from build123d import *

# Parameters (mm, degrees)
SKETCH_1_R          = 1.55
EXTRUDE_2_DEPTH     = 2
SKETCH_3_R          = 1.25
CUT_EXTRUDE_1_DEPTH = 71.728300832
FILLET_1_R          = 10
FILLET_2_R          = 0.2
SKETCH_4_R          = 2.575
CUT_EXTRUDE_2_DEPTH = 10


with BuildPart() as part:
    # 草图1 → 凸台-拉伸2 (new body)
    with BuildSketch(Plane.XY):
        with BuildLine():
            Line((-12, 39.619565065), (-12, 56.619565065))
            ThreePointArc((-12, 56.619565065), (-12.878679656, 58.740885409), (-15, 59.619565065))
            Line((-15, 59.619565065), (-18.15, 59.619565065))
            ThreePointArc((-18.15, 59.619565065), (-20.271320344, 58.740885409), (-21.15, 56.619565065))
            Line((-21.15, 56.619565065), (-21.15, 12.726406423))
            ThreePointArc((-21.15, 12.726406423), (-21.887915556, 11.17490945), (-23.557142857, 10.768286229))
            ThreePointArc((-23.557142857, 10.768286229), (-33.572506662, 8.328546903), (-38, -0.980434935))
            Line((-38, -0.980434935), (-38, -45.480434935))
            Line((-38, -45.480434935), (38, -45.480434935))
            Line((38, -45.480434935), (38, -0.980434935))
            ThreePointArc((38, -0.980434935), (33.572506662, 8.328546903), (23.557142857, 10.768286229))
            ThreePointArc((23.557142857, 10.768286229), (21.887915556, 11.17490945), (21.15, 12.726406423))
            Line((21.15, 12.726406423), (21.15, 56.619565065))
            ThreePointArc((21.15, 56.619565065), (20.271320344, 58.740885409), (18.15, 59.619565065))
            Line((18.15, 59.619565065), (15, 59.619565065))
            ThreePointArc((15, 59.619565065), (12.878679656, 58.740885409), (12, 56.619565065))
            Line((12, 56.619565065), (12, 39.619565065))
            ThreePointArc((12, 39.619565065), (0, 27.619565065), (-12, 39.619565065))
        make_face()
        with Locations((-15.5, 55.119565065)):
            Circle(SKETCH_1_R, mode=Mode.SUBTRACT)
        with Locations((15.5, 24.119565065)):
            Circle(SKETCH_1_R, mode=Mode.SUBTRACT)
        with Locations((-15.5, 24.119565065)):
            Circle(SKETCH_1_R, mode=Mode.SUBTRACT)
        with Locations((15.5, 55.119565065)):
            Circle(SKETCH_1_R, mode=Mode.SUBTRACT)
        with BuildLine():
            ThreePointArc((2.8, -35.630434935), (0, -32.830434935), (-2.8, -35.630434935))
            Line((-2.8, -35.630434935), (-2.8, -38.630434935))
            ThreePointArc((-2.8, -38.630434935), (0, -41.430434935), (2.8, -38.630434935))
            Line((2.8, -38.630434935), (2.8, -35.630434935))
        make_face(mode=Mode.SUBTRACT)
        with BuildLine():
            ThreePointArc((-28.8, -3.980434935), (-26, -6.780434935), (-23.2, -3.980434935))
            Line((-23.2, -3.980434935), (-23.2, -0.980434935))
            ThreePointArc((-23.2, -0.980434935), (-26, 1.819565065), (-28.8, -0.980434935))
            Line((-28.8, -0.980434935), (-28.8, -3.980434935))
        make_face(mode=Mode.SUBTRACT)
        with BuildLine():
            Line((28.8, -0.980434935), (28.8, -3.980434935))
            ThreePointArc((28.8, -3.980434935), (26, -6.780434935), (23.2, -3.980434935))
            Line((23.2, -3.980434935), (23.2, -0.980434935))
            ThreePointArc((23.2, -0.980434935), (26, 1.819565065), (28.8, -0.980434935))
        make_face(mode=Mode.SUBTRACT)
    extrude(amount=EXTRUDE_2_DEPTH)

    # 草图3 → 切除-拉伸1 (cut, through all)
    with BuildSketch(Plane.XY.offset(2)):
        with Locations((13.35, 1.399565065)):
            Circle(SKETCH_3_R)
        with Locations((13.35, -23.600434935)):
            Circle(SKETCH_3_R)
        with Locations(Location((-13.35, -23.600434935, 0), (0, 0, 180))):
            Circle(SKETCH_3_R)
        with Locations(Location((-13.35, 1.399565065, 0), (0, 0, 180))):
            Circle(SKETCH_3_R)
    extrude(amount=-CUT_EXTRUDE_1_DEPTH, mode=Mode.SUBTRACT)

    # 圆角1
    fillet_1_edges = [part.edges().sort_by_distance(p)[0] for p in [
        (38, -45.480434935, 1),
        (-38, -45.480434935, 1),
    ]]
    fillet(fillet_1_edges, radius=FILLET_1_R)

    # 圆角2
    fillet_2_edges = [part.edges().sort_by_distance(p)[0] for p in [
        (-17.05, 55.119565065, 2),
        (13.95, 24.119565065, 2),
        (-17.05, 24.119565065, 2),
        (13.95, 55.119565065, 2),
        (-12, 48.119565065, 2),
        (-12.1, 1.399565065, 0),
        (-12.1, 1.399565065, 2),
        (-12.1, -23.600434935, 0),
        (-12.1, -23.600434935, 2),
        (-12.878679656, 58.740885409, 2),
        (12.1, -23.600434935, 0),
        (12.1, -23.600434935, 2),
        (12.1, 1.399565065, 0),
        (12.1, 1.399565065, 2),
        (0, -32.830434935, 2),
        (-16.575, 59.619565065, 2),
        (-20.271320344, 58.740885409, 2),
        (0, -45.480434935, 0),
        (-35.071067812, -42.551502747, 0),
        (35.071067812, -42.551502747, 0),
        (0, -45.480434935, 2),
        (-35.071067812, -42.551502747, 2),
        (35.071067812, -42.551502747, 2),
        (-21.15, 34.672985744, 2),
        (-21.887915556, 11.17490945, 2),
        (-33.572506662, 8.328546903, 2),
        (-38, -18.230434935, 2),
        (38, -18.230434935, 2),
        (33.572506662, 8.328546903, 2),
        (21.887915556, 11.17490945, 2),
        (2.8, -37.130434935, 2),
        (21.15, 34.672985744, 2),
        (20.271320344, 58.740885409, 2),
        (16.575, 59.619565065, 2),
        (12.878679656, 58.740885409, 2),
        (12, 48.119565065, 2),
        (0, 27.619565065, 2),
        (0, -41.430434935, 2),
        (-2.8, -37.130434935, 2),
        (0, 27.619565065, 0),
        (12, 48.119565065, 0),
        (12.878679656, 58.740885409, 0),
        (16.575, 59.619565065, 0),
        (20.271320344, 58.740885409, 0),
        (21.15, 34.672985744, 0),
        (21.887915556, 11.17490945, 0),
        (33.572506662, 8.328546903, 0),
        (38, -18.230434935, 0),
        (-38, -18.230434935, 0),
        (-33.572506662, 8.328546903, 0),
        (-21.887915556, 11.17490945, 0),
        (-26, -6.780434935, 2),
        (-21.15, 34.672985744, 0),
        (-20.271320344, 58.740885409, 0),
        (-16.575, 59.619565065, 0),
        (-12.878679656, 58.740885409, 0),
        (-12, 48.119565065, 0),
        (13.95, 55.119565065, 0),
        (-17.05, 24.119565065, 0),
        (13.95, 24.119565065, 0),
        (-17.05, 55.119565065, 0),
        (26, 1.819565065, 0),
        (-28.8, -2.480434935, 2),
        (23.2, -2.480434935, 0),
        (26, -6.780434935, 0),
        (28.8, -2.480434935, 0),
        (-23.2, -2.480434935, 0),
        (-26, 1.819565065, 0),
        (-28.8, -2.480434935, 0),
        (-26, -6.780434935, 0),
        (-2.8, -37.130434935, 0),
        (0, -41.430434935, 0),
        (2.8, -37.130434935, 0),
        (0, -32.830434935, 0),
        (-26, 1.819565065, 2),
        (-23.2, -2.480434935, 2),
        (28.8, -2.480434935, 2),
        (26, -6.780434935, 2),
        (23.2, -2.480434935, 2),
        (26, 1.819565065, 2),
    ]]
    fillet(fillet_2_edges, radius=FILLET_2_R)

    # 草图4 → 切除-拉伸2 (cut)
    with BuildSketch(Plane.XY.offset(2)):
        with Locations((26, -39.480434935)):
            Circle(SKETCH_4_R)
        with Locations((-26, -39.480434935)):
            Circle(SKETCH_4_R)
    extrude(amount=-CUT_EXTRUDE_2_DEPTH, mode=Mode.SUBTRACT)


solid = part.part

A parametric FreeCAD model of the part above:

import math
import FreeCAD as App
import Part
import Sketcher
from FreeCAD import Vector
Q = App.Units.Quantity


def edges_at(feature, points):
    """Names of the edges that pass closest to the given points."""
    edges = feature.Shape.Edges
    near = lambda p: min(range(len(edges)), key=lambda i: edges[i].distToShape(Part.Vertex(*p))[0])
    return sorted({f"Edge{near(p) + 1}" for p in points})

doc = App.newDocument("Part")
body = doc.addObject("PartDesign::Body", "Body")

sketch1 = body.newObject("Sketcher::SketchObject", "Sketch")
sketch1.AttachmentSupport = (doc.getObject("XY_Plane"), [""])
sketch1.MapMode = "FlatFace"
sketch1.addGeometry([
    Part.LineSegment(Vector(-12, 39.619565, 0), Vector(-12, 56.619565, 0)),
    Part.ArcOfCircle(Part.Circle(Vector(-15, 56.619565, 0), Vector(0, 0, 1), 3), math.radians(0), math.radians(90)),
    Part.LineSegment(Vector(-15, 59.619565, 0), Vector(-18.15, 59.619565, 0)),
    Part.ArcOfCircle(Part.Circle(Vector(-18.15, 56.619565, 0), Vector(0, 0, 1), 3), math.radians(90), math.radians(180)),
    Part.LineSegment(Vector(-21.15, 56.619565, 0), Vector(-21.15, 12.726406, 0)),
    Part.ArcOfCircle(Part.Circle(Vector(-23.15, 12.726406, 0), Vector(0, 0, 1), 2), math.radians(-101.745885), math.radians(0)),
    Part.ArcOfCircle(Part.Circle(Vector(-26, -0.980435, 0), Vector(0, 0, 1), 12), math.radians(78.254115), math.radians(180)),
    Part.LineSegment(Vector(-38, -0.980435, 0), Vector(-38, -45.480435, 0)),
    Part.LineSegment(Vector(-38, -45.480435, 0), Vector(38, -45.480435, 0)),
    Part.LineSegment(Vector(38, -45.480435, 0), Vector(38, -0.980435, 0)),
    Part.ArcOfCircle(Part.Circle(Vector(26, -0.980435, 0), Vector(0, 0, 1), 12), math.radians(0), math.radians(101.745885)),
    Part.ArcOfCircle(Part.Circle(Vector(23.15, 12.726406, 0), Vector(0, 0, 1), 2), math.radians(180), math.radians(281.745885)),
    Part.LineSegment(Vector(21.15, 12.726406, 0), Vector(21.15, 56.619565, 0)),
    Part.ArcOfCircle(Part.Circle(Vector(18.15, 56.619565, 0), Vector(0, 0, 1), 3), math.radians(0), math.radians(90)),
    Part.LineSegment(Vector(18.15, 59.619565, 0), Vector(15, 59.619565, 0)),
    Part.ArcOfCircle(Part.Circle(Vector(15, 56.619565, 0), Vector(0, 0, 1), 3), math.radians(90), math.radians(180)),
    Part.LineSegment(Vector(12, 56.619565, 0), Vector(12, 39.619565, 0)),
    Part.ArcOfCircle(Part.Circle(Vector(0, 39.619565, 0), Vector(0, 0, 1), 12), math.radians(180), math.radians(360)),
    Part.ArcOfCircle(Part.Circle(Vector(-26, -3.980435, 0), Vector(0, 0, 1), 2.8), math.radians(180), math.radians(360)),
    Part.LineSegment(Vector(-28.8, -3.980435, 0), Vector(-28.8, -0.980435, 0)),
    Part.ArcOfCircle(Part.Circle(Vector(-26, -0.980435, 0), Vector(0, 0, 1), 2.8), math.radians(0), math.radians(180)),
    Part.LineSegment(Vector(-23.2, -0.980435, 0), Vector(-23.2, -3.980435, 0)),
    Part.ArcOfCircle(Part.Circle(Vector(0, -35.630435, 0), Vector(0, 0, 1), 2.8), math.radians(0), math.radians(180)),
    Part.LineSegment(Vector(2.8, -35.630435, 0), Vector(2.8, -38.630435, 0)),
    Part.ArcOfCircle(Part.Circle(Vector(0, -38.630435, 0), Vector(0, 0, 1), 2.8), math.radians(180), math.radians(360)),
    Part.LineSegment(Vector(-2.8, -38.630435, 0), Vector(-2.8, -35.630435, 0)),
    Part.ArcOfCircle(Part.Circle(Vector(26, -0.980435, 0), Vector(0, 0, 1), 2.8), math.radians(0), math.radians(180)),
    Part.LineSegment(Vector(28.8, -0.980435, 0), Vector(28.8, -3.980435, 0)),
    Part.ArcOfCircle(Part.Circle(Vector(26, -3.980435, 0), Vector(0, 0, 1), 2.8), math.radians(180), math.radians(360)),
    Part.LineSegment(Vector(23.2, -3.980435, 0), Vector(23.2, -0.980435, 0)),
    Part.Circle(Vector(-15.5, 24.119565, 0), Vector(0, 0, 1), 1.55),
    Part.Circle(Vector(-15.5, 55.119565, 0), Vector(0, 0, 1), 1.55),
    Part.Circle(Vector(15.5, 24.119565, 0), Vector(0, 0, 1), 1.55),
    Part.Circle(Vector(15.5, 55.119565, 0), Vector(0, 0, 1), 1.55),
], False)
sketch1.addConstraint([
    Sketcher.Constraint("Tangent", 0, 2, 1, 1),
    Sketcher.Constraint("Tangent", 1, 2, 2, 1),
    Sketcher.Constraint("Tangent", 2, 2, 3, 1),
    Sketcher.Constraint("Tangent", 3, 2, 4, 1),
    Sketcher.Constraint("Tangent", 4, 2, 5, 2),
    Sketcher.Constraint("Tangent", 5, 1, 6, 1),
    Sketcher.Constraint("Tangent", 6, 2, 7, 1),
    Sketcher.Constraint("Coincident", 7, 2, 8, 1),
    Sketcher.Constraint("Coincident", 8, 2, 9, 1),
    Sketcher.Constraint("Tangent", 9, 2, 10, 1),
    Sketcher.Constraint("Tangent", 10, 2, 11, 2),
    Sketcher.Constraint("Tangent", 11, 1, 12, 1),
    Sketcher.Constraint("Tangent", 12, 2, 13, 1),
    Sketcher.Constraint("Tangent", 13, 2, 14, 1),
    Sketcher.Constraint("Tangent", 14, 2, 15, 1),
    Sketcher.Constraint("Tangent", 15, 2, 16, 1),
    Sketcher.Constraint("Tangent", 16, 2, 17, 2),
    Sketcher.Constraint("Tangent", 17, 1, 0, 1),
    Sketcher.Constraint("Tangent", 18, 1, 19, 1),
    Sketcher.Constraint("Tangent", 19, 2, 20, 2),
    Sketcher.Constraint("Tangent", 20, 1, 21, 1),
    Sketcher.Constraint("Tangent", 21, 2, 18, 2),
    Sketcher.Constraint("Tangent", 22, 1, 23, 1),
    Sketcher.Constraint("Tangent", 23, 2, 24, 2),
    Sketcher.Constraint("Tangent", 24, 1, 25, 1),
    Sketcher.Constraint("Tangent", 25, 2, 22, 2),
    Sketcher.Constraint("Tangent", 26, 1, 27, 1),
    Sketcher.Constraint("Tangent", 27, 2, 28, 2),
    Sketcher.Constraint("Tangent", 28, 1, 29, 1),
    Sketcher.Constraint("Tangent", 29, 2, 26, 2),
    Sketcher.Constraint("Vertical", 0),
    Sketcher.Constraint("Horizontal", 2),
    Sketcher.Constraint("Vertical", 4),
    Sketcher.Constraint("Vertical", 7),
    Sketcher.Constraint("Horizontal", 8),
    Sketcher.Constraint("Vertical", 9),
    Sketcher.Constraint("Vertical", 12),
    Sketcher.Constraint("Horizontal", 14),
    Sketcher.Constraint("Vertical", 16),
    Sketcher.Constraint("Vertical", 19),
    Sketcher.Constraint("Vertical", 21),
    Sketcher.Constraint("Vertical", 23),
    Sketcher.Constraint("Vertical", 25),
    Sketcher.Constraint("Vertical", 27),
    Sketcher.Constraint("Vertical", 29),
    Sketcher.Constraint("Coincident", 20, 3, 6, 3),
    Sketcher.Constraint("Coincident", 26, 3, 10, 3),
    Sketcher.Constraint("Equal", 1, 3),
    Sketcher.Constraint("Equal", 6, 10),
    Sketcher.Constraint("Equal", 5, 11),
    Sketcher.Constraint("Equal", 3, 13),
    Sketcher.Constraint("Equal", 13, 15),
    Sketcher.Constraint("Equal", 10, 17),
    Sketcher.Constraint("Equal", 20, 22),
    Sketcher.Constraint("Equal", 24, 26),
    Sketcher.Constraint("Equal", 30, 31),
    Sketcher.Constraint("Equal", 31, 32),
    Sketcher.Constraint("Equal", 32, 33),
    Sketcher.Constraint("Symmetric", 6, 3, 10, 3, -2),
    Sketcher.Constraint("Symmetric", 3, 3, 13, 3, -2),
    Sketcher.Constraint("Symmetric", 30, 3, 32, 3, -2),
    Sketcher.Constraint("Symmetric", 31, 3, 33, 3, -2),
    Sketcher.Constraint("PointOnObject", 17, 3, -2),
    Sketcher.Constraint("PointOnObject", 22, 3, -2),
    Sketcher.Constraint("Horizontal", 18, 3, 28, 3),
    Sketcher.Constraint("Vertical", 30, 3, 31, 3),
    Sketcher.Constraint("Equal", 21, 23),
    Sketcher.Constraint("Radius", 1, Q("3 mm")),
    Sketcher.Constraint("Radius", 5, Q("2 mm")),
    Sketcher.Constraint("Radius", 6, Q("12 mm")),
    Sketcher.Constraint("Diameter", 30, Q("3.1 mm")),
    Sketcher.Constraint("Radius", 18, Q("2.8 mm")),
    Sketcher.Constraint("DistanceX", 8, 1, 8, 2, Q("76 mm")),
    Sketcher.Constraint("DistanceY", 0, 1, 0, 2, Q("17 mm")),
    Sketcher.Constraint("DistanceY", 19, 1, 19, 2, Q("3 mm")),
    Sketcher.Constraint("DistanceY", 7, 2, 7, 1, Q("44.5 mm")),
    Sketcher.Constraint("DistanceY", 30, 3, 31, 3, Q("31 mm")),
    Sketcher.Constraint("DistanceX", 31, 3, 33, 3, Q("31 mm")),
    Sketcher.Constraint("DistanceX", 2, 2, 2, 1, Q("3.15 mm")),
    Sketcher.Constraint("DistanceY", 6, 3, 3, 3, Q("57.6 mm")),
    Sketcher.Constraint("DistanceY", 30, 3, 17, 3, Q("15.5 mm")),
    Sketcher.Constraint("DistanceY", 22, 3, 18, 3, Q("31.65 mm")),
    Sketcher.Constraint("DistanceY", -1, 1, 1, 3, Q("56.619565 mm")),
])
pad1 = body.newObject("PartDesign::Pad", "Pad")
pad1.Profile = sketch1
pad1.Length = 2

sketch2 = body.newObject("Sketcher::SketchObject", "Sketch001")
sketch2.AttachmentSupport = (doc.getObject("XY_Plane"), [""])
sketch2.MapMode = "FlatFace"
sketch2.AttachmentOffset = App.Placement(Vector(0, 0, 2), App.Rotation())
sketch2.addGeometry([
    Part.Circle(Vector(13.35, 1.399565, 0), Vector(0, 0, 1), 1.25),
    Part.Circle(Vector(13.35, -23.600435, 0), Vector(0, 0, 1), 1.25),
    Part.Circle(Vector(-13.35, -23.600435, 0), Vector(0, 0, 1), 1.25),
    Part.Circle(Vector(-13.35, 1.399565, 0), Vector(0, 0, 1), 1.25),
], False)
sketch2.addConstraint([
    Sketcher.Constraint("Equal", 0, 1),
    Sketcher.Constraint("Equal", 1, 2),
    Sketcher.Constraint("Equal", 2, 3),
    Sketcher.Constraint("Symmetric", 1, 3, 2, 3, -2),
    Sketcher.Constraint("Symmetric", 0, 3, 3, 3, -2),
    Sketcher.Constraint("Vertical", 0, 3, 1, 3),
    Sketcher.Constraint("Diameter", 0, Q("2.5 mm")),
    Sketcher.Constraint("DistanceY", 1, 3, 0, 3, Q("25 mm")),
    Sketcher.Constraint("DistanceX", 2, 3, 1, 3, Q("26.7 mm")),
    Sketcher.Constraint("DistanceY", -1, 1, 0, 3, Q("1.399565 mm")),
])
pocket1 = body.newObject("PartDesign::Pocket", "Pocket")
pocket1.Profile = sketch2
pocket1.Type = "ThroughAll"
doc.recompute()

fillet = body.newObject("PartDesign::Fillet", "Fillet")
fillet.Base = (pocket1, edges_at(pocket1, [(38, -45.48, 1), (-38, -45.48, 1)]))
fillet.Radius = 10
doc.recompute()

fillet2 = body.newObject("PartDesign::Fillet", "Fillet001")
fillet2.Base = (fillet, edges_at(fillet, [
    (-17.05, 55.12, 2),
    (13.95, 24.12, 2),
    (-17.05, 24.12, 2),
    (13.95, 55.12, 2),
    (-12, 48.12, 2),
    (-12.1, 1.4, 0),
    (-12.1, 1.4, 2),
    (-12.1, -23.6, 0),
    (-12.1, -23.6, 2),
    (-12.879, 58.741, 2),
    (12.1, -23.6, 0),
    (12.1, -23.6, 2),
    (12.1, 1.4, 0),
    (12.1, 1.4, 2),
    (0, -32.83, 2),
    (-16.575, 59.62, 2),
    (-20.271, 58.741, 2),
    (0, -45.48, 0),
    (-35.071, -42.552, 0),
    (35.071, -42.552, 0),
    (0, -45.48, 2),
    (-35.071, -42.552, 2),
    (35.071, -42.552, 2),
    (-21.15, 34.673, 2),
    (-21.888, 11.175, 2),
    (-33.573, 8.329, 2),
    (-38, -18.23, 2),
    (38, -18.23, 2),
    (33.573, 8.329, 2),
    (21.888, 11.175, 2),
    (2.8, -37.13, 2),
    (21.15, 34.673, 2),
    (20.271, 58.741, 2),
    (16.575, 59.62, 2),
    (12.879, 58.741, 2),
    (12, 48.12, 2),
    (0, 27.62, 2),
    (0, -41.43, 2),
    (-2.8, -37.13, 2),
    (0, 27.62, 0),
    (12, 48.12, 0),
    (12.879, 58.741, 0),
    (16.575, 59.62, 0),
    (20.271, 58.741, 0),
    (21.15, 34.673, 0),
    (21.888, 11.175, 0),
    (33.573, 8.329, 0),
    (38, -18.23, 0),
    (-38, -18.23, 0),
    (-33.573, 8.329, 0),
    (-21.888, 11.175, 0),
    (-26, -6.78, 2),
    (-21.15, 34.673, 0),
    (-20.271, 58.741, 0),
    (-16.575, 59.62, 0),
    (-12.879, 58.741, 0),
    (-12, 48.12, 0),
    (13.95, 55.12, 0),
    (-17.05, 24.12, 0),
    (13.95, 24.12, 0),
    (-17.05, 55.12, 0),
    (26, 1.82, 0),
    (-28.8, -2.48, 2),
    (23.2, -2.48, 0),
    (26, -6.78, 0),
    (28.8, -2.48, 0),
    (-23.2, -2.48, 0),
    (-26, 1.82, 0),
    (-28.8, -2.48, 0),
    (-26, -6.78, 0),
    (-2.8, -37.13, 0),
    (0, -41.43, 0),
    (2.8, -37.13, 0),
    (0, -32.83, 0),
    (-26, 1.82, 2),
    (-23.2, -2.48, 2),
    (28.8, -2.48, 2),
    (26, -6.78, 2),
    (23.2, -2.48, 2),
    (26, 1.82, 2),
]))
fillet2.Radius = 0.2

sketch3 = body.newObject("Sketcher::SketchObject", "Sketch002")
sketch3.AttachmentSupport = (doc.getObject("XY_Plane"), [""])
sketch3.MapMode = "FlatFace"
sketch3.AttachmentOffset = App.Placement(Vector(0, 0, 2), App.Rotation())
sketch3.addGeometry([
    Part.Circle(Vector(26, -39.480435, 0), Vector(0, 0, 1), 2.575),
    Part.Circle(Vector(-26, -39.480435, 0), Vector(0, 0, 1), 2.575),
], False)
sketch3.addConstraint([
    Sketcher.Constraint("Equal", 0, 1),
    Sketcher.Constraint("Symmetric", 0, 3, 1, 3, -2),
    Sketcher.Constraint("Diameter", 0, Q("5.15 mm")),
    Sketcher.Constraint("DistanceX", -1, 1, 0, 3, Q("26 mm")),
    Sketcher.Constraint("DistanceY", 0, 3, -1, 1, Q("39.480435 mm")),
])
pocket2 = body.newObject("PartDesign::Pocket", "Pocket001")
pocket2.Profile = sketch3
pocket2.Length = 10

doc.recompute()
